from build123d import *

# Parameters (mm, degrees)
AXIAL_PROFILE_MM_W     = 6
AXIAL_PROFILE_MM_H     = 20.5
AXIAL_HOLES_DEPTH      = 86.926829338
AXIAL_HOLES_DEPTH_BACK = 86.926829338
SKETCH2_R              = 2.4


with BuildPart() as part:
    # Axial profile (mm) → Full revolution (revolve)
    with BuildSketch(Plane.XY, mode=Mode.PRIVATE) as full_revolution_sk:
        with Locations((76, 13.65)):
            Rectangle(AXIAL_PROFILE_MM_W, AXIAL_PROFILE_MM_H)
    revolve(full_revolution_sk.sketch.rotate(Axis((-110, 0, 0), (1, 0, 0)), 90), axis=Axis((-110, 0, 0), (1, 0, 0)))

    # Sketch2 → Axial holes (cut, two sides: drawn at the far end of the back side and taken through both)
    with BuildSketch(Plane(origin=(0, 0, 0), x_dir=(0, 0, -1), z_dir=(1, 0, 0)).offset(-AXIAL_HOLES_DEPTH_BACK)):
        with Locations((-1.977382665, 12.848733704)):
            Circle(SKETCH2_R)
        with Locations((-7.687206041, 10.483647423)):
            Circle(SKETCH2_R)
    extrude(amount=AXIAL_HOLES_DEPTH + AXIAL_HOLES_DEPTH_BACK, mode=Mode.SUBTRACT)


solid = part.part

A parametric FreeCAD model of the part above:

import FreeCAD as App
import Part
import Sketcher
from FreeCAD import Vector
Q = App.Units.Quantity


def add_polygon(sketch, points):
    """Adds a closed chain of lines whose ends are joined by coincident constraints."""
    first, n = sketch.GeometryCount, len(points)
    for a, b in zip(points, points[1:] + points[:1]):
        sketch.addGeometry(Part.LineSegment(App.Vector(*a, 0), App.Vector(*b, 0)), False)
    for i in range(n):
        sketch.addConstraint(Sketcher.Constraint("Coincident", first + i, 2, first + (i + 1) % n, 1))

doc = App.newDocument("Part")
params = doc.addObject("Spreadsheet::Sheet", "Params")
for row, (alias, value) in enumerate([
    ("sketch1_width", "6 mm"),
    ("sketch1_height", "20.5 mm"),
    ("revolution_angle", "360 deg"),
    ("sketch2_diameter", "4.8 mm"),
], start=1):
    params.set(f"A{row}", alias)
    params.set(f"B{row}", "=" + value)
    params.setAlias(f"B{row}", alias)

body = doc.addObject("PartDesign::Body", "Body")

# Sketch on XY plane
sketch1 = body.newObject("Sketcher::SketchObject", "Sketch")
sketch1.AttachmentSupport = (doc.getObject("XY_Plane"), [""])
sketch1.MapMode = "FlatFace"
add_polygon(sketch1, [(73, 23.9), (73, 3.4), (79, 3.4), (79, 23.9)])  # lines 0-3
sketch1.addConstraint([
    Sketcher.Constraint("Vertical", 0),
    Sketcher.Constraint("Horizontal", 1),
    Sketcher.Constraint("Vertical", 2),
    Sketcher.Constraint("Horizontal", 3),
    Sketcher.Constraint("DistanceX", 1, 1, 1, 2, Q("6 mm")),
    Sketcher.Constraint("DistanceY", 0, 2, 0, 1, Q("20.5 mm")),
    Sketcher.Constraint("DistanceX", -1, 1, 0, 2, Q("73 mm")),
    Sketcher.Constraint("DistanceY", -1, 1, 0, 2, Q("3.4 mm")),
])
sketch1.setExpression("Constraints[8]", "Params.sketch1_width")
sketch1.setExpression("Constraints[9]", "Params.sketch1_height")
revolution = body.newObject("PartDesign::Revolution", "Revolution")
revolution.Profile = sketch1
revolution.ReferenceAxis = (sketch1, ["H_Axis"])
revolution.setExpression("Angle", "Params.revolution_angle")

# Sketch on YZ plane
sketch2 = body.newObject("Sketcher::SketchObject", "Sketch001")
sketch2.AttachmentSupport = (doc.getObject("YZ_Plane"), [""])
sketch2.MapMode = "FlatFace"
sketch2.addGeometry([
    Part.Circle(Vector(12.848734, 1.977383, 0), Vector(0, 0, 1), 2.4),
    Part.Circle(Vector(10.483647, 7.687206, 0), Vector(0, 0, 1), 2.4),
], False)
sketch2.addConstraint([
    Sketcher.Constraint("Equal", 0, 1),
    Sketcher.Constraint("Diameter", 0, Q("4.8 mm")),
    Sketcher.Constraint("DistanceX", -1, 1, 0, 3, Q("12.848734 mm")),
    Sketcher.Constraint("DistanceY", -1, 1, 0, 3, Q("1.977383 mm")),
    Sketcher.Constraint("DistanceX", -1, 1, 1, 3, Q("10.483647 mm")),
    Sketcher.Constraint("DistanceY", -1, 1, 1, 3, Q("7.687206 mm")),
])
sketch2.setExpression("Constraints[1]", "Params.sketch2_diameter")
pocket1 = body.newObject("PartDesign::Pocket", "Pocket")
pocket1.Profile = sketch2
pocket1.Type = "ThroughAll"
pocket1.Midplane = True

doc.recompute()
